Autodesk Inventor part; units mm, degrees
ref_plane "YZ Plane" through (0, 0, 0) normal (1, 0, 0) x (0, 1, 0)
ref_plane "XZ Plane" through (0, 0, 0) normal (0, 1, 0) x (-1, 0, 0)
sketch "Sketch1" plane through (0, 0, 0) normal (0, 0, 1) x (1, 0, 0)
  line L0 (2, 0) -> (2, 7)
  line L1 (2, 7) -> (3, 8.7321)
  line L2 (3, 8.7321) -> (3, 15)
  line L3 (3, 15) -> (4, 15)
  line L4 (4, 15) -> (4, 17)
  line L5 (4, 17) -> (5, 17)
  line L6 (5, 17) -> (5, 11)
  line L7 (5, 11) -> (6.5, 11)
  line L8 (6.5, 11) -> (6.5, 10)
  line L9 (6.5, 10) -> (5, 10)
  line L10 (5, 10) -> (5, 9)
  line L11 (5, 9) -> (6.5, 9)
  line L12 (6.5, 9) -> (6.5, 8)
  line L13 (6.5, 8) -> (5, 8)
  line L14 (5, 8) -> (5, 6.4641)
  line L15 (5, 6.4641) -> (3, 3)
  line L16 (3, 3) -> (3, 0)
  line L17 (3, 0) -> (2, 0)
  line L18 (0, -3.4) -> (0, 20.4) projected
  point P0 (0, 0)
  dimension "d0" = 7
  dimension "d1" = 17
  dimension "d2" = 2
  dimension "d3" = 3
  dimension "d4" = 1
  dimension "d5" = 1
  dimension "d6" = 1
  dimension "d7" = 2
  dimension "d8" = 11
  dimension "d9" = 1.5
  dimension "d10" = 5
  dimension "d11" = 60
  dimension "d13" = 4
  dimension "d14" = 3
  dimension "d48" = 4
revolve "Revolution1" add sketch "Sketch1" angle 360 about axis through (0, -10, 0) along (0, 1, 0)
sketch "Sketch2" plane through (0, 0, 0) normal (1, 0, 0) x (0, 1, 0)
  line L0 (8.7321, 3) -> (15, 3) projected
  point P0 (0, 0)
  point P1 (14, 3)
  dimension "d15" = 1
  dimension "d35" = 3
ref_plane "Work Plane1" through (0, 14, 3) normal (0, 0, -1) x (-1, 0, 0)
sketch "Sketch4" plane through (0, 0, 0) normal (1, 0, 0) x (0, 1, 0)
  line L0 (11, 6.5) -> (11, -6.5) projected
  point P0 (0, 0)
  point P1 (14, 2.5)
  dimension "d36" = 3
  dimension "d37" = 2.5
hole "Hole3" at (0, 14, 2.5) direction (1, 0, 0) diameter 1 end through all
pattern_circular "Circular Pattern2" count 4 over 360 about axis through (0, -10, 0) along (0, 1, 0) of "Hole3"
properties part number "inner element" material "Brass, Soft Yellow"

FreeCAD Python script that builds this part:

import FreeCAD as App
import Part
import Sketcher
Q = App.Units.Quantity

doc = App.newDocument("Part")
body = doc.addObject("PartDesign::Body", "Body")

# Sketch on XY plane
sketch1 = body.newObject("Sketcher::SketchObject", "Sketch")
sketch1.AttachmentSupport = (doc.getObject("XY_Plane"), [""])
sketch1.MapMode = "FlatFace"
sketch1.addGeometry(Part.LineSegment(App.Vector(2, 7, 0), App.Vector(2, 0, 0)), False)
sketch1.addGeometry(Part.LineSegment(App.Vector(2, 0, 0), App.Vector(3, 0, 0)), False)
sketch1.addGeometry(Part.LineSegment(App.Vector(3, 0, 0), App.Vector(3, 3, 0)), False)
sketch1.addGeometry(Part.LineSegment(App.Vector(3, 3, 0), App.Vector(5, 6.4641, 0)), False)
sketch1.addGeometry(Part.LineSegment(App.Vector(5, 6.4641, 0), App.Vector(5, 8, 0)), False)
sketch1.addGeometry(Part.LineSegment(App.Vector(5, 8, 0), App.Vector(6.5, 8, 0)), False)
sketch1.addGeometry(Part.LineSegment(App.Vector(6.5, 8, 0), App.Vector(6.5, 9, 0)), False)
sketch1.addGeometry(Part.LineSegment(App.Vector(6.5, 9, 0), App.Vector(5, 9, 0)), False)
sketch1.addGeometry(Part.LineSegment(App.Vector(5, 9, 0), App.Vector(5, 10, 0)), False)
sketch1.addGeometry(Part.LineSegment(App.Vector(5, 10, 0), App.Vector(6.5, 10, 0)), False)
sketch1.addGeometry(Part.LineSegment(App.Vector(6.5, 10, 0), App.Vector(6.5, 11, 0)), False)
sketch1.addGeometry(Part.LineSegment(App.Vector(6.5, 11, 0), App.Vector(5, 11, 0)), False)
sketch1.addGeometry(Part.LineSegment(App.Vector(5, 11, 0), App.Vector(5, 17, 0)), False)
sketch1.addGeometry(Part.LineSegment(App.Vector(5, 17, 0), App.Vector(4, 17, 0)), False)
sketch1.addGeometry(Part.LineSegment(App.Vector(4, 17, 0), App.Vector(4, 15, 0)), False)
sketch1.addGeometry(Part.LineSegment(App.Vector(4, 15, 0), App.Vector(3, 15, 0)), False)
sketch1.addGeometry(Part.LineSegment(App.Vector(3, 15, 0), App.Vector(3, 8.7321, 0)), False)
sketch1.addGeometry(Part.LineSegment(App.Vector(3, 8.7321, 0), App.Vector(2, 7, 0)), False)
sketch1.addConstraint(Sketcher.Constraint("Coincident", 0, 2, 1, 1))
sketch1.addConstraint(Sketcher.Constraint("Coincident", 1, 2, 2, 1))
sketch1.addConstraint(Sketcher.Constraint("Coincident", 2, 2, 3, 1))
sketch1.addConstraint(Sketcher.Constraint("Coincident", 3, 2, 4, 1))
sketch1.addConstraint(Sketcher.Constraint("Coincident", 4, 2, 5, 1))
sketch1.addConstraint(Sketcher.Constraint("Coincident", 5, 2, 6, 1))
sketch1.addConstraint(Sketcher.Constraint("Coincident", 6, 2, 7, 1))
sketch1.addConstraint(Sketcher.Constraint("Coincident", 7, 2, 8, 1))
sketch1.addConstraint(Sketcher.Constraint("Coincident", 8, 2, 9, 1))
sketch1.addConstraint(Sketcher.Constraint("Coincident", 9, 2, 10, 1))
sketch1.addConstraint(Sketcher.Constraint("Coincident", 10, 2, 11, 1))
sketch1.addConstraint(Sketcher.Constraint("Coincident", 11, 2, 12, 1))
sketch1.addConstraint(Sketcher.Constraint("Coincident", 12, 2, 13, 1))
sketch1.addConstraint(Sketcher.Constraint("Coincident", 13, 2, 14, 1))
sketch1.addConstraint(Sketcher.Constraint("Coincident", 14, 2, 15, 1))
sketch1.addConstraint(Sketcher.Constraint("Coincident", 15, 2, 16, 1))
sketch1.addConstraint(Sketcher.Constraint("Coincident", 16, 2, 17, 1))
sketch1.addConstraint(Sketcher.Constraint("Coincident", 17, 2, 0, 1))
sketch1.addConstraint(Sketcher.Constraint("Vertical", 0))
sketch1.addConstraint(Sketcher.Constraint("Horizontal", 1))
sketch1.addConstraint(Sketcher.Constraint("Vertical", 2))
sketch1.addConstraint(Sketcher.Constraint("Vertical", 4))
sketch1.addConstraint(Sketcher.Constraint("Horizontal", 5))
sketch1.addConstraint(Sketcher.Constraint("Vertical", 6))
sketch1.addConstraint(Sketcher.Constraint("Horizontal", 7))
sketch1.addConstraint(Sketcher.Constraint("Vertical", 8))
sketch1.addConstraint(Sketcher.Constraint("Horizontal", 9))
sketch1.addConstraint(Sketcher.Constraint("Vertical", 10))
sketch1.addConstraint(Sketcher.Constraint("Horizontal", 11))
sketch1.addConstraint(Sketcher.Constraint("Vertical", 12))
sketch1.addConstraint(Sketcher.Constraint("Horizontal", 13))
sketch1.addConstraint(Sketcher.Constraint("Vertical", 14))
sketch1.addConstraint(Sketcher.Constraint("Horizontal", 15))
sketch1.addConstraint(Sketcher.Constraint("Vertical", 16))
sketch1.addConstraint(Sketcher.Constraint("PointOnObject", 0, 2, -1))
sketch1.addConstraint(Sketcher.Constraint("Parallel", 3, 17))
sketch1.addConstraint(Sketcher.Constraint("Vertical", 4, 2, 7, 2))
sketch1.addConstraint(Sketcher.Constraint("Vertical", 6, 2, 9, 2))
sketch1.addConstraint(Sketcher.Constraint("Vertical", 8, 2, 11, 2))
sketch1.addConstraint(Sketcher.Constraint("Vertical", 2, 2, 15, 2))
sketch1.addConstraint(Sketcher.Constraint("Equal", 1, 13))
sketch1.addConstraint(Sketcher.Constraint("Equal", 13, 15))
sketch1.addConstraint(Sketcher.Constraint("Equal", 15, 6))
sketch1.addConstraint(Sketcher.Constraint("Equal", 6, 8))
sketch1.addConstraint(Sketcher.Constraint("Equal", 8, 10))
sketch1.addConstraint(Sketcher.Constraint("DistanceX", 1, 1, 1, 2, 1.0))
sketch1.addConstraint(Sketcher.Constraint("DistanceY", 0, 2, 0, 1, 7.0))
sketch1.addConstraint(Sketcher.Constraint("DistanceY", 2, 1, 2, 2, 3.0))
sketch1.addConstraint(Sketcher.Constraint("DistanceY", 14, 2, 14, 1, 2.0))
sketch1.addConstraint(Sketcher.Constraint("Angle", 3, Q("60 deg")))
sketch1.addConstraint(Sketcher.Constraint("DistanceX", 5, 1, 5, 2, 1.5))
sketch1.addConstraint(Sketcher.Constraint("DistanceX", -1, 1, 0, 2, 2.0))
sketch1.addConstraint(Sketcher.Constraint("DistanceY", -1, 1, 10, 2, 11.0))
sketch1.addConstraint(Sketcher.Constraint("DistanceY", -1, 1, 12, 2, 17.0))
revolution = body.newObject("PartDesign::Revolution", "Revolution")
revolution.Profile = sketch1
revolution.ReferenceAxis = (sketch1, ["V_Axis"])
revolution.Angle = 360

# Sketch on YZ plane
sketch2 = body.newObject("Sketcher::SketchObject", "Sketch001")
sketch2.AttachmentSupport = (doc.getObject("YZ_Plane"), [""])
sketch2.MapMode = "FlatFace"
sketch2.addGeometry(Part.Circle(App.Vector(14, 2.5, 0), App.Vector(0, 0, 1), 0.5), False)
sketch2.addConstraint(Sketcher.Constraint("Diameter", 0, 1.0))
sketch2.addConstraint(Sketcher.Constraint("DistanceX", -1, 1, 0, 3, 14.0))
sketch2.addConstraint(Sketcher.Constraint("DistanceY", -1, 1, 0, 3, 2.5))
doc.recompute()
hole = body.newObject("PartDesign::Hole", "Hole")
hole.Profile = sketch2
hole.ThreadType = "None"
hole.Diameter = 1
hole.DepthType = "ThroughAll"
hole.Reversed = True
doc.recompute()

polarpattern = body.newObject("PartDesign::PolarPattern", "PolarPattern")
polarpattern.Originals = [hole]
polarpattern.Axis = (doc.getObject("Y_Axis"), [""])
polarpattern.Angle = 360
polarpattern.Occurrences = 4
body.Tip = polarpattern

doc.recompute()
